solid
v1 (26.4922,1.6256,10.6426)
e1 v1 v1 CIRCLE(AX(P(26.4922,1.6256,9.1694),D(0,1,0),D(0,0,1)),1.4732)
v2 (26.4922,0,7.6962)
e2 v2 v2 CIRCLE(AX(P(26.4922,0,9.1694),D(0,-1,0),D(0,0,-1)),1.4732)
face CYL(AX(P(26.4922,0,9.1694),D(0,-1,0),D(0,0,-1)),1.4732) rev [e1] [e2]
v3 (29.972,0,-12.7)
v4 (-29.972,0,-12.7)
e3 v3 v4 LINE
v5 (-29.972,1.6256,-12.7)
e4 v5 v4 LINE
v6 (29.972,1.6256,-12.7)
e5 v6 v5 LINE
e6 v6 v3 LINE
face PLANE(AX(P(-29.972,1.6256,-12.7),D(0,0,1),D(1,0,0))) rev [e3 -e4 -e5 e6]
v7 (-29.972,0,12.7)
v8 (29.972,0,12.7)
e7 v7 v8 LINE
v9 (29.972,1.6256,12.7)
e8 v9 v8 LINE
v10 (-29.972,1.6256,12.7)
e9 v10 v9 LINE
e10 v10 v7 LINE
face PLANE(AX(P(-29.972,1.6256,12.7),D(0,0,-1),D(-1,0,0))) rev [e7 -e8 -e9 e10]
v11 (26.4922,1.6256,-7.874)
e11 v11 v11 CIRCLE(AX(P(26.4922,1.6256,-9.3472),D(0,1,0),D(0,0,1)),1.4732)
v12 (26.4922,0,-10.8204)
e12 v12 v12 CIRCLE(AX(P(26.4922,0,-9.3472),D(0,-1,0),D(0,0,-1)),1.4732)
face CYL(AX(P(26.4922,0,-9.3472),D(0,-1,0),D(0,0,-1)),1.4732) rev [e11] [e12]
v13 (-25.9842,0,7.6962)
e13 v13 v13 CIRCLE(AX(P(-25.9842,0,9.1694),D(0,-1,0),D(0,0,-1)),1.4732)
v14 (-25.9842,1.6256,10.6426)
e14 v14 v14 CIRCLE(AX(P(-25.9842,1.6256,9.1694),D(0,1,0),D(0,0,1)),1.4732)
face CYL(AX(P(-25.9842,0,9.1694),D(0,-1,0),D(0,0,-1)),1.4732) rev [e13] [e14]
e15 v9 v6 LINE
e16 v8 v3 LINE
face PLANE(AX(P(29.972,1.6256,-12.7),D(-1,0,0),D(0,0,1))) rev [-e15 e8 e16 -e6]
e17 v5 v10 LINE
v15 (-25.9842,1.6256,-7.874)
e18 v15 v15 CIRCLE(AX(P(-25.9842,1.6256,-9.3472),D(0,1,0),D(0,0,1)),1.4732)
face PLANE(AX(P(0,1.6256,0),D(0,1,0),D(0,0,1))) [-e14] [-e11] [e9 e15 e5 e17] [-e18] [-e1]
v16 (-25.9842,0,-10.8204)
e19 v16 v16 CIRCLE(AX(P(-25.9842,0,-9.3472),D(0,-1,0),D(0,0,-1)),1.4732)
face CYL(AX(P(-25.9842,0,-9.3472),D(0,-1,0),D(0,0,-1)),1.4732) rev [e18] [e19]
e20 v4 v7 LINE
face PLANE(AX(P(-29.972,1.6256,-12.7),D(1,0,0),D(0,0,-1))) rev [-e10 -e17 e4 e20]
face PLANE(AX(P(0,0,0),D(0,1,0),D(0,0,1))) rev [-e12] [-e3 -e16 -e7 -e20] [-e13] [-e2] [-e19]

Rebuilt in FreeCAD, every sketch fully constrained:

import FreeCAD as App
import Part
import Sketcher
from FreeCAD import Vector
Q = App.Units.Quantity


def add_polygon(sketch, points):
    """Adds a closed chain of lines whose ends are joined by coincident constraints."""
    first, n = sketch.GeometryCount, len(points)
    for a, b in zip(points, points[1:] + points[:1]):
        sketch.addGeometry(Part.LineSegment(App.Vector(*a, 0), App.Vector(*b, 0)), False)
    for i in range(n):
        sketch.addConstraint(Sketcher.Constraint("Coincident", first + i, 2, first + (i + 1) % n, 1))

doc = App.newDocument("Part")
body = doc.addObject("PartDesign::Body", "Body")

sketch1 = doc.addObject("Sketcher::SketchObject", "Sketch")
body.addObject(sketch1)
sketch1.AttachmentSupport = (doc.XZ_Plane, [""])
sketch1.MapMode = "FlatFace"
add_polygon(sketch1, [(-30, -13), (-30, 13), (30, 13), (30, -13)])
sketch1.addConstraint(Sketcher.Constraint("Vertical", 0))
sketch1.addConstraint(Sketcher.Constraint("Horizontal", 1))
sketch1.addConstraint(Sketcher.Constraint("Vertical", 2))
sketch1.addConstraint(Sketcher.Constraint("Horizontal", 3))
sketch1.addConstraint(Sketcher.Constraint("Symmetric", 0, 2, 2, 2, -1, 1))
sketch1.addConstraint(Sketcher.Constraint("DistanceY", 0, 1, 0, 2, Q("1 in")))
sketch1.addConstraint(Sketcher.Constraint("DistanceX", 1, 1, 1, 2, Q("2.36 in")))
pad1 = doc.addObject("PartDesign::Pad", "Pad")
body.addObject(pad1)
pad1.Profile = sketch1
pad1.Length = Q("0.064 in")
pad1.Reversed = True

sketch2 = doc.addObject("Sketcher::SketchObject", "Sketch001")
body.addObject(sketch2)
sketch2.AttachmentSupport = (doc.XZ_Plane, [""])
sketch2.MapMode = "FlatFace"
sketch2.addGeometry(Part.Circle(Vector(-26, 9.2, 0), Vector(0, 0, 1), 1.5), False)
sketch2.addGeometry(Part.Circle(Vector(26.5, 9.2, 0), Vector(0, 0, 1), 1.5), False)
sketch2.addGeometry(Part.Circle(Vector(26.5, -9.3, 0), Vector(0, 0, 1), 1.5), False)
sketch2.addGeometry(Part.Circle(Vector(-26, -9.3, 0), Vector(0, 0, 1), 1.5), False)
sketch2.addConstraint(Sketcher.Constraint("Equal", 0, 1))
sketch2.addConstraint(Sketcher.Constraint("Equal", 1, 2))
sketch2.addConstraint(Sketcher.Constraint("Equal", 2, 3))
sketch2.addConstraint(Sketcher.Constraint("Horizontal", 0, 3, 1, 3))
sketch2.addConstraint(Sketcher.Constraint("Horizontal", 2, 3, 3, 3))
sketch2.addConstraint(Sketcher.Constraint("Vertical", 1, 3, 2, 3))
sketch2.addConstraint(Sketcher.Constraint("Vertical", 0, 3, 3, 3))
sketch2.addConstraint(Sketcher.Constraint("Diameter", 0, Q("0.116 in")))
sketch2.addConstraint(Sketcher.Constraint("DistanceX", 0, 3, -1, 1, Q("1.023 in")))
sketch2.addConstraint(Sketcher.Constraint("DistanceY", -1, 1, 0, 3, Q("0.361 in")))
sketch2.addConstraint(Sketcher.Constraint("DistanceX", -1, 1, 1, 3, Q("1.043 in")))
sketch2.addConstraint(Sketcher.Constraint("DistanceY", 2, 3, -1, 1, Q("0.368 in")))
doc.recompute()
hole = doc.addObject("PartDesign::Hole", "Hole")
body.addObject(hole)
hole.Profile = sketch2
hole.ThreadType = "None"
hole.Diameter = Q("0.116 in")
hole.DepthType = "Dimension"
hole.Depth = Q("2.22 in")
hole.DrillPoint = "Angled"
hole.DrillPointAngle = 118

doc.recompute()
